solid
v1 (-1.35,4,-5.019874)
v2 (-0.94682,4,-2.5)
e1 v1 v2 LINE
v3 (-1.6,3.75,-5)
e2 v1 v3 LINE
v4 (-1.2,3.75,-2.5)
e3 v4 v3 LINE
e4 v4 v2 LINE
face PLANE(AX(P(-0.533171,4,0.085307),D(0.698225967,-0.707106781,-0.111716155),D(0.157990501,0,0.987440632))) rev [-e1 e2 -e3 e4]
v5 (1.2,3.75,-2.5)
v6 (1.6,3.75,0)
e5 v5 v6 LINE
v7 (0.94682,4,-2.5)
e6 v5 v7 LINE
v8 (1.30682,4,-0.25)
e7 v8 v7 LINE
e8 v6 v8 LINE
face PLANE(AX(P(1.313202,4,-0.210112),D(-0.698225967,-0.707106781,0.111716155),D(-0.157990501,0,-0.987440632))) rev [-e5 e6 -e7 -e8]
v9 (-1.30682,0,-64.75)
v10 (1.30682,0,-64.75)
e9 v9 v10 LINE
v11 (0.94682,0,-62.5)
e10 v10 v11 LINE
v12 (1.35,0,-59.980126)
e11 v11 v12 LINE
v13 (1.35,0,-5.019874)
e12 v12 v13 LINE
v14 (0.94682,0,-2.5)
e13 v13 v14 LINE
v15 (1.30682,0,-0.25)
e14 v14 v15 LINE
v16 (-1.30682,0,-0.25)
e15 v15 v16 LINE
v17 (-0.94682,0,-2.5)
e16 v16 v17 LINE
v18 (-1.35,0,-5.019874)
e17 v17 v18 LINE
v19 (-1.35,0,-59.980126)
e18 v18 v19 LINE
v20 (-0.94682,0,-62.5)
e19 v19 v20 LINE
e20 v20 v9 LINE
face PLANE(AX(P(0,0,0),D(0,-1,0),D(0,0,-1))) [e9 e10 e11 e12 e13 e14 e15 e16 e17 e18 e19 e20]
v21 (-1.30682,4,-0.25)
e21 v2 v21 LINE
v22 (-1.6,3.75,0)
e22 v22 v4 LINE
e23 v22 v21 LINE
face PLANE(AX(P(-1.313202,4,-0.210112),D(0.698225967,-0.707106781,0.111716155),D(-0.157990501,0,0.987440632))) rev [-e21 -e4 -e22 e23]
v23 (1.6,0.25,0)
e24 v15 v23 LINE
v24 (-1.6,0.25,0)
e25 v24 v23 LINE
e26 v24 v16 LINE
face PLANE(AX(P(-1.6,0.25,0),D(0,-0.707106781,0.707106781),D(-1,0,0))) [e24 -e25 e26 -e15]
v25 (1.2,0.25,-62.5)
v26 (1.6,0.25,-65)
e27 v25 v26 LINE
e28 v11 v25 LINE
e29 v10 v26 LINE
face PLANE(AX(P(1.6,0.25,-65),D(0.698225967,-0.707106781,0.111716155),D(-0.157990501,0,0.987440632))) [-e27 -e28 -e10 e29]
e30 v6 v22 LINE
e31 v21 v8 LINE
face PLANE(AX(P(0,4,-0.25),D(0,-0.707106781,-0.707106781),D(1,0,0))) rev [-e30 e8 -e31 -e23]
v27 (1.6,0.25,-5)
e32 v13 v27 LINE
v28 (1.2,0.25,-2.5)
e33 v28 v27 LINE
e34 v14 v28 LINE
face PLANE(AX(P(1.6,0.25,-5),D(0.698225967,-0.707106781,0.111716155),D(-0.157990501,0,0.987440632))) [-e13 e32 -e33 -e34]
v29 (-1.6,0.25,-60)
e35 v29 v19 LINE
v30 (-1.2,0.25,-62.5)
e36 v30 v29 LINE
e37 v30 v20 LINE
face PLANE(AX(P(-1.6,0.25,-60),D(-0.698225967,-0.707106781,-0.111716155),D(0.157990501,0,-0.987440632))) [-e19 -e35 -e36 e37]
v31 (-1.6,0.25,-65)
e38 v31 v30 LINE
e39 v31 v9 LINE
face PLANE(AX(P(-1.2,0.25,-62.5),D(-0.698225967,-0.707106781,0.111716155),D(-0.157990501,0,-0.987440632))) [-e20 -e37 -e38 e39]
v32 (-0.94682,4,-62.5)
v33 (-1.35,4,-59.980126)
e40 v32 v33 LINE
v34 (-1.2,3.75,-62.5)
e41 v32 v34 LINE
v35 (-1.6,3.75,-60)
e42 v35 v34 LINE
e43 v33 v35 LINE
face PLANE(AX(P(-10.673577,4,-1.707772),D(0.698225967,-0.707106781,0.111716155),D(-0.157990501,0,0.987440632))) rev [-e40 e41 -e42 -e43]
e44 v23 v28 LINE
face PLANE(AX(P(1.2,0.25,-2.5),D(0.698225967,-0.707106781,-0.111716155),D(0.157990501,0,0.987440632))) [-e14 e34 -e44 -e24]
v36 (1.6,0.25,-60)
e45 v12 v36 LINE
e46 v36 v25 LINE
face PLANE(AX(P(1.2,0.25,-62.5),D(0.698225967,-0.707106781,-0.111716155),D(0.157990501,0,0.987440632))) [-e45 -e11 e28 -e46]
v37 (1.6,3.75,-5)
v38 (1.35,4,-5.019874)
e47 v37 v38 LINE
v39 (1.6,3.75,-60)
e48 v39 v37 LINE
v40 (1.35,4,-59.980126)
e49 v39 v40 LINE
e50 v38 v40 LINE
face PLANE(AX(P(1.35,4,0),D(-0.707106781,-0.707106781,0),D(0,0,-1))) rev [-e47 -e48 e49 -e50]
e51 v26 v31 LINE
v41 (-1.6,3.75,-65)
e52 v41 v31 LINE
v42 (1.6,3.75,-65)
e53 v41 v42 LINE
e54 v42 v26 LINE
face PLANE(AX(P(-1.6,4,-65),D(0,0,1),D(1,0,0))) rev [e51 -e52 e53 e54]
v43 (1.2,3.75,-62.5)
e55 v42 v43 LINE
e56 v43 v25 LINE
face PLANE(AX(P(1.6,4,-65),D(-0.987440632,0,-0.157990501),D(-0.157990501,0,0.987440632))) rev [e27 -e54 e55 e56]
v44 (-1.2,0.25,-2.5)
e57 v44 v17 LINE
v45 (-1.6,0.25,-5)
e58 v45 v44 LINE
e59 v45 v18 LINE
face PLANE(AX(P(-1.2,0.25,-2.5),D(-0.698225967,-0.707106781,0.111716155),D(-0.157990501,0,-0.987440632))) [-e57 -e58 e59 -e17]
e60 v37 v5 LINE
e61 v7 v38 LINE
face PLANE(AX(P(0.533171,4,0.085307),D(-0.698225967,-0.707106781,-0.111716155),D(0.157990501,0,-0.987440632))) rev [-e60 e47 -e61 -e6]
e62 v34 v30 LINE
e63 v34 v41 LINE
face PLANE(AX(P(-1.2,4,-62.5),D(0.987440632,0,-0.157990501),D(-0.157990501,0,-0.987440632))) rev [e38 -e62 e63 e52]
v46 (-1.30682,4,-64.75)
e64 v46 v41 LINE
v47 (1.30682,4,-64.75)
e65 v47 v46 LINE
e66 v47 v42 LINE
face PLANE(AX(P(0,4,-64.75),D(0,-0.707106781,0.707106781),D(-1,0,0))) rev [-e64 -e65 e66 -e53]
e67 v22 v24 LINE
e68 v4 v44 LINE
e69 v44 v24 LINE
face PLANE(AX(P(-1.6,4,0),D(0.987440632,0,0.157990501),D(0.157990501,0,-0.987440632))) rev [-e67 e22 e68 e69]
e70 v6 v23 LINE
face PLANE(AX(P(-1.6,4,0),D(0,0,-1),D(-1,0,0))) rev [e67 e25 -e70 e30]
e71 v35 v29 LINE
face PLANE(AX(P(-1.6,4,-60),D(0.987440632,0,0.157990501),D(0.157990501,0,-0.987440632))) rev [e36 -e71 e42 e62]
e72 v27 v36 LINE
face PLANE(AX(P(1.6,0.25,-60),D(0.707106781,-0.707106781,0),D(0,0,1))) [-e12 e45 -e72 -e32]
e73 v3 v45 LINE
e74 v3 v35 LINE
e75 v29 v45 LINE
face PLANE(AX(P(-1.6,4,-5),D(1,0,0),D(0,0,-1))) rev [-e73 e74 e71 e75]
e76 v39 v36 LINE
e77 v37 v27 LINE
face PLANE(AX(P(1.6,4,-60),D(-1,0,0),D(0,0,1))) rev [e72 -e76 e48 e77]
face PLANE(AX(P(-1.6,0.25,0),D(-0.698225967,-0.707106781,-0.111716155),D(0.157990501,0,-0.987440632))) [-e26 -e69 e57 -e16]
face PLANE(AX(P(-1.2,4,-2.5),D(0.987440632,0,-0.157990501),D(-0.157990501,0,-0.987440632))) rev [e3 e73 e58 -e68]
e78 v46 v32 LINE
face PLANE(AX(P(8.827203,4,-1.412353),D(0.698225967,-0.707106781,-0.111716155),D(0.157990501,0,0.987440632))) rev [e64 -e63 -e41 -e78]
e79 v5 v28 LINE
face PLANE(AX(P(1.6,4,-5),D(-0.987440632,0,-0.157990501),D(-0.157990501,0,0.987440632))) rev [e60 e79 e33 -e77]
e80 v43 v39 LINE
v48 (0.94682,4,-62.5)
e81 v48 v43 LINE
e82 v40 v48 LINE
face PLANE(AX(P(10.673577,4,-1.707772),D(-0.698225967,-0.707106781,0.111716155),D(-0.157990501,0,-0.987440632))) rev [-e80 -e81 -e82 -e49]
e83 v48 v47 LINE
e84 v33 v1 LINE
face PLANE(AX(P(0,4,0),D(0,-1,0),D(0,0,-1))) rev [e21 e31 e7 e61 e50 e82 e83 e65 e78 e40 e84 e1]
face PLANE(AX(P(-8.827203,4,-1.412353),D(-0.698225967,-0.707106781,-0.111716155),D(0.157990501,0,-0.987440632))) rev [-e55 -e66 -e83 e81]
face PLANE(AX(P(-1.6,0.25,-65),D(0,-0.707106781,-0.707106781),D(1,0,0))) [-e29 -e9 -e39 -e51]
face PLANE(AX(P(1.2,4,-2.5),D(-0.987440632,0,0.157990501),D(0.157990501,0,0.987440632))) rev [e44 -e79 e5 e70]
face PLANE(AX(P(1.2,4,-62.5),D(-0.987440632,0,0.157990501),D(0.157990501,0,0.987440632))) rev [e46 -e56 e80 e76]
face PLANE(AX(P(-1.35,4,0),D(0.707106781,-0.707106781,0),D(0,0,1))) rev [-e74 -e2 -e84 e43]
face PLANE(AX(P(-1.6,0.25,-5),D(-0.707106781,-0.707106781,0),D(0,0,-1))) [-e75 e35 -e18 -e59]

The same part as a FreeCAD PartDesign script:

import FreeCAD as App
import Part
import Sketcher
from FreeCAD import Vector


def edges_at(feature, points):
    """Names of the edges that pass closest to the given points."""
    edges = feature.Shape.Edges
    near = lambda p: min(range(len(edges)), key=lambda i: edges[i].distToShape(Part.Vertex(*p))[0])
    return sorted({f"Edge{near(p) + 1}" for p in points})

doc = App.newDocument("Part")
body = doc.addObject("PartDesign::Body", "Body")

sketch1 = body.newObject("Sketcher::SketchObject", "Sketch")
sketch1.AttachmentSupport = (doc.getObject("XZ_Plane"), [""])
sketch1.MapMode = "FlatFace"
sketch1.addGeometry([
    Part.LineSegment(Vector(-1.6, 0, 0), Vector(1.6, 0, 0)),
    Part.LineSegment(Vector(1.6, 0, 0), Vector(1.2, -2.5, 0)),
    Part.LineSegment(Vector(1.2, -2.5, 0), Vector(1.6, -5, 0)),
    Part.LineSegment(Vector(1.6, -5, 0), Vector(1.6, -60, 0)),
    Part.LineSegment(Vector(1.6, -60, 0), Vector(1.2, -62.5, 0)),
    Part.LineSegment(Vector(1.2, -62.5, 0), Vector(1.6, -65, 0)),
    Part.LineSegment(Vector(1.6, -65, 0), Vector(-1.6, -65, 0)),
    Part.LineSegment(Vector(-1.6, -65, 0), Vector(-1.2, -62.5, 0)),
    Part.LineSegment(Vector(-1.2, -62.5, 0), Vector(-1.6, -60, 0)),
    Part.LineSegment(Vector(-1.6, -60, 0), Vector(-1.6, -5, 0)),
    Part.LineSegment(Vector(-1.6, -5, 0), Vector(-1.2, -2.5, 0)),
    Part.LineSegment(Vector(-1.2, -2.5, 0), Vector(-1.6, 0, 0)),
], False)
sketch1.addConstraint([
    Sketcher.Constraint("Coincident", 0, 2, 1, 1),
    Sketcher.Constraint("Coincident", 1, 2, 2, 1),
    Sketcher.Constraint("Coincident", 2, 2, 3, 1),
    Sketcher.Constraint("Coincident", 3, 2, 4, 1),
    Sketcher.Constraint("Coincident", 4, 2, 5, 1),
    Sketcher.Constraint("Coincident", 5, 2, 6, 1),
    Sketcher.Constraint("Coincident", 6, 2, 7, 1),
    Sketcher.Constraint("Coincident", 7, 2, 8, 1),
    Sketcher.Constraint("Coincident", 8, 2, 9, 1),
    Sketcher.Constraint("Coincident", 9, 2, 10, 1),
    Sketcher.Constraint("Coincident", 10, 2, 11, 1),
    Sketcher.Constraint("Coincident", 11, 2, 0, 1),
    Sketcher.Constraint("Horizontal", 0),
    Sketcher.Constraint("Vertical", 3),
    Sketcher.Constraint("Horizontal", 6),
    Sketcher.Constraint("Vertical", 9),
    Sketcher.Constraint("Symmetric", 0, 2, 11, 2, -1, 1),
    Sketcher.Constraint("Symmetric", 4, 2, 7, 2, -2),
    Sketcher.Constraint("Symmetric", 3, 2, 8, 2, -2),
    Sketcher.Constraint("Symmetric", 1, 2, 10, 2, -2),
    Sketcher.Constraint("Parallel", 1, 4),
    Sketcher.Constraint("Parallel", 2, 5),
    Sketcher.Constraint("Parallel", 4, 7),
    Sketcher.Constraint("Parallel", 5, 8),
    Sketcher.Constraint("Parallel", 7, 10),
    Sketcher.Constraint("Vertical", 0, 2, 2, 2),
    Sketcher.Constraint("Vertical", 1, 2, 4, 2),
    Sketcher.Constraint("Vertical", 3, 2, 5, 2),
    Sketcher.Constraint("DistanceY", 3, 2, 3, 1, 55.0),
    Sketcher.Constraint("DistanceX", 0, 1, 0, 2, 3.2),
    Sketcher.Constraint("DistanceY", 2, 2, -1, 1, 5.0),
    Sketcher.Constraint("DistanceX", -1, 1, 1, 2, 1.2),
])
pad1 = body.newObject("PartDesign::Pad", "Pad")
pad1.Profile = sketch1
pad1.Length = 4
pad1.Reversed = True
doc.recompute()

chamfer = body.newObject("PartDesign::Chamfer", "Chamfer")
chamfer.Base = (pad1, edges_at(pad1, [
    (-1.4, 0, -3.75),
    (-1.6, 0, -32.5),
    (1.4, 4, -1.25),
    (-1.4, 0, -61.25),
    (-1.4, 0, -63.75),
    (0, 0, -65),
    (1.4, 0, -63.75),
    (1.4, 0, -61.25),
    (1.6, 0, -32.5),
    (1.4, 0, -3.75),
    (1.4, 0, -1.25),
    (0, 0, 0),
    (-1.4, 0, -1.25),
    (1.4, 4, -3.75),
    (1.6, 4, -32.5),
    (1.4, 4, -61.25),
    (1.4, 4, -63.75),
    (0, 4, -65),
    (-1.4, 4, -63.75),
    (-1.4, 4, -61.25),
    (-1.6, 4, -32.5),
    (-1.4, 4, -3.75),
    (-1.4, 4, -1.25),
    (0, 4, 0),
]))
chamfer.Size = 0.25

doc.recompute()
